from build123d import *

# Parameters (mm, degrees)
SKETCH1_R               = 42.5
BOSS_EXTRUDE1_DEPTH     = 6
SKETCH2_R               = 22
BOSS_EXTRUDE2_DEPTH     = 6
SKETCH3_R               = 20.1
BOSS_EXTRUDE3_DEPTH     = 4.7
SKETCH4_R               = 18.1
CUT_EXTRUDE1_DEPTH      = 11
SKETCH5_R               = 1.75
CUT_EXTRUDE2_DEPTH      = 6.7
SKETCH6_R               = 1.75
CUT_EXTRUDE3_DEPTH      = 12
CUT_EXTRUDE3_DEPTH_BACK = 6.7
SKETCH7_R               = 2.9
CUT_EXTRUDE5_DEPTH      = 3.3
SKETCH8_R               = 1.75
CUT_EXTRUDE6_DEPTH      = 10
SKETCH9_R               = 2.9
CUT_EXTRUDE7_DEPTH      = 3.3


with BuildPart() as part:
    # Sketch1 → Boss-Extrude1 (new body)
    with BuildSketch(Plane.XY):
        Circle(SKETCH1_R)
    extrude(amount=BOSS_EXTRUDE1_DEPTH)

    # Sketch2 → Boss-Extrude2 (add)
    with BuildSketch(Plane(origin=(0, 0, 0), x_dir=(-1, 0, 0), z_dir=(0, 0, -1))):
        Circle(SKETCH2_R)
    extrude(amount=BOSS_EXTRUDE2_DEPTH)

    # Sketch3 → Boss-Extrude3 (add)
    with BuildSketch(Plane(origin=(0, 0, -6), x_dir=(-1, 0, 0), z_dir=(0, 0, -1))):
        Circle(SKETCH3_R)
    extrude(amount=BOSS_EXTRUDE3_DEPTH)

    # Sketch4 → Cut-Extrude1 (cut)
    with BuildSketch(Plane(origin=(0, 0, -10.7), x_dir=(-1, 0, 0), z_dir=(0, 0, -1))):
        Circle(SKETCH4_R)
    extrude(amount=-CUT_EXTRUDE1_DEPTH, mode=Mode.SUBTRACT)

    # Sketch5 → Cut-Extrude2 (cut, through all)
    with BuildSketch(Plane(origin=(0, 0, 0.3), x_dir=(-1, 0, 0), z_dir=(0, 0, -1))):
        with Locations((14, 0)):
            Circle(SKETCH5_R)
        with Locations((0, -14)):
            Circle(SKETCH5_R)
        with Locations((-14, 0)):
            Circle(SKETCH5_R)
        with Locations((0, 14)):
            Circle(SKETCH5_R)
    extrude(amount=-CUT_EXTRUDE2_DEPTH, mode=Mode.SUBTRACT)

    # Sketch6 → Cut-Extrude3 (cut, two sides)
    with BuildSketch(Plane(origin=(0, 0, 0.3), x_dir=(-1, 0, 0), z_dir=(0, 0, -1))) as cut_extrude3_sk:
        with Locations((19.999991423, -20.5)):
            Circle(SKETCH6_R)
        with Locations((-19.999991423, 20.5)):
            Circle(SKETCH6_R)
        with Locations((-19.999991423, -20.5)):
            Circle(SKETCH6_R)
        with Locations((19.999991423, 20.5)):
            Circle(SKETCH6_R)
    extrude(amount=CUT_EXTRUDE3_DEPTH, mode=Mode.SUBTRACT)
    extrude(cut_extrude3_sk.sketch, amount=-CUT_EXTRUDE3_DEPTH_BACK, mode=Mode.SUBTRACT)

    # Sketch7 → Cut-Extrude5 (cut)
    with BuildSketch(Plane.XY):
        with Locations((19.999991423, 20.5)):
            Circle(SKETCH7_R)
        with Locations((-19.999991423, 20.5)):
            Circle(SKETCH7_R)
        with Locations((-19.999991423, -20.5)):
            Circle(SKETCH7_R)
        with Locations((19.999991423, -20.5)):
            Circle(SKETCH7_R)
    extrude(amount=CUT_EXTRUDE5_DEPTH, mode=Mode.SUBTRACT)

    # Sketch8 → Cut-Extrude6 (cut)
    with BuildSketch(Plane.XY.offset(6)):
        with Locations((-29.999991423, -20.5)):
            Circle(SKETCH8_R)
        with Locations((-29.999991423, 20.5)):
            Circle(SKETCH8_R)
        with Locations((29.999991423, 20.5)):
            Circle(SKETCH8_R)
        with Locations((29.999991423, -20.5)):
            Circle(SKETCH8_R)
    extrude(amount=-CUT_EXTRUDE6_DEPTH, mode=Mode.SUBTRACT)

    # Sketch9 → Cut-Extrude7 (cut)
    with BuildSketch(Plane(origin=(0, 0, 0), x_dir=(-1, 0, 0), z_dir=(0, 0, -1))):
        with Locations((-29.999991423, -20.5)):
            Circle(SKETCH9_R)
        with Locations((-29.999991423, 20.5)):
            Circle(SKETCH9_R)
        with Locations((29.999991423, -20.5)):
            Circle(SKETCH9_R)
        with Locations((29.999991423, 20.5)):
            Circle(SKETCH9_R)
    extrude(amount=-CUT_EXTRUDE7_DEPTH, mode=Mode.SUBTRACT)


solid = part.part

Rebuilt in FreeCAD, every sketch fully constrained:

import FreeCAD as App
import Part
import Sketcher

V = App.Vector
Q = App.Units.Quantity

doc = App.newDocument("Part")
body = doc.addObject("PartDesign::Body", "Body")

sketch1 = body.newObject("Sketcher::SketchObject", "Sketch")
sketch1.AttachmentSupport = (doc.getObject("XY_Plane"), [""])
sketch1.MapMode = "FlatFace"
sketch1.addGeometry(Part.Circle(V(0, 0, 0), V(0, 0, 1), 42.5), False)
sketch1.addConstraint([
    Sketcher.Constraint("Coincident", 0, 3, -1, 1),
    Sketcher.Constraint("Diameter", 0, Q("85 mm")),
])
pad1 = body.newObject("PartDesign::Pad", "Pad")
pad1.Profile = sketch1
pad1.Length = 6

sketch2 = body.newObject("Sketcher::SketchObject", "Sketch001")
sketch2.AttachmentSupport = (doc.getObject("XY_Plane"), [""])
sketch2.MapMode = "FlatFace"
sketch2.addGeometry(Part.Circle(V(0, 0, 0), V(0, 0, 1), 22), False)
sketch2.addConstraint([
    Sketcher.Constraint("Coincident", 0, 3, -1, 1),
    Sketcher.Constraint("Diameter", 0, Q("44 mm")),
])
pad2 = body.newObject("PartDesign::Pad", "Pad001")
pad2.Profile = sketch2
pad2.Length = 6
pad2.Reversed = True

sketch3 = body.newObject("Sketcher::SketchObject", "Sketch002")
sketch3.AttachmentSupport = (doc.getObject("XY_Plane"), [""])
sketch3.MapMode = "FlatFace"
sketch3.AttachmentOffset = App.Placement(V(0, 0, -6), App.Rotation())
sketch3.addGeometry(Part.Circle(V(0, 0, 0), V(0, 0, 1), 20.1), False)
sketch3.addConstraint([
    Sketcher.Constraint("Coincident", 0, 3, -1, 1),
    Sketcher.Constraint("Diameter", 0, Q("40.2 mm")),
])
pad3 = body.newObject("PartDesign::Pad", "Pad002")
pad3.Profile = sketch3
pad3.Length = 4.7
pad3.Reversed = True

sketch4 = body.newObject("Sketcher::SketchObject", "Sketch003")
sketch4.AttachmentSupport = (doc.getObject("XY_Plane"), [""])
sketch4.MapMode = "FlatFace"
sketch4.AttachmentOffset = App.Placement(V(0, 0, -10.7), App.Rotation())
sketch4.addGeometry(Part.Circle(V(0, 0, 0), V(0, 0, 1), 18.1), False)
sketch4.addConstraint([
    Sketcher.Constraint("Coincident", 0, 3, -1, 1),
    Sketcher.Constraint("Diameter", 0, Q("36.2 mm")),
])
pocket1 = body.newObject("PartDesign::Pocket", "Pocket")
pocket1.Profile = sketch4
pocket1.Length = 11
pocket1.Reversed = True

sketch5 = body.newObject("Sketcher::SketchObject", "Sketch004")
sketch5.AttachmentSupport = (doc.getObject("XY_Plane"), [""])
sketch5.MapMode = "FlatFace"
sketch5.AttachmentOffset = App.Placement(V(0, 0, 0.3), App.Rotation())
sketch5.addGeometry([
    Part.Circle(V(-14, 0, 0), V(0, 0, 1), 1.75),
    Part.Circle(V(0, -14, 0), V(0, 0, 1), 1.75),
    Part.Circle(V(14, 0, 0), V(0, 0, 1), 1.75),
    Part.Circle(V(0, 14, 0), V(0, 0, 1), 1.75),
], False)
sketch5.addConstraint([
    Sketcher.Constraint("Equal", 0, 1),
    Sketcher.Constraint("Equal", 1, 2),
    Sketcher.Constraint("Equal", 2, 3),
    Sketcher.Constraint("Symmetric", 0, 3, 2, 3, -1, 1),
    Sketcher.Constraint("Symmetric", 1, 3, 3, 3, -1, 1),
    Sketcher.Constraint("PointOnObject", 0, 3, -1),
    Sketcher.Constraint("PointOnObject", 1, 3, -2),
    Sketcher.Constraint("Diameter", 0, Q("3.5 mm")),
    Sketcher.Constraint("DistanceX", 0, 3, -1, 1, Q("14 mm")),
    Sketcher.Constraint("DistanceY", 1, 3, -1, 1, Q("14 mm")),
])
pocket2 = body.newObject("PartDesign::Pocket", "Pocket001")
pocket2.Profile = sketch5
pocket2.Type = "ThroughAll"
pocket2.Reversed = True

sketch6 = body.newObject("Sketcher::SketchObject", "Sketch005")
sketch6.AttachmentSupport = (doc.getObject("XY_Plane"), [""])
sketch6.MapMode = "FlatFace"
sketch6.AttachmentOffset = App.Placement(V(0, 0, 0.3), App.Rotation())
sketch6.addGeometry([
    Part.Circle(V(-19.999991, -20.5, 0), V(0, 0, 1), 1.75),
    Part.Circle(V(19.999991, 20.5, 0), V(0, 0, 1), 1.75),
    Part.Circle(V(19.999991, -20.5, 0), V(0, 0, 1), 1.75),
    Part.Circle(V(-19.999991, 20.5, 0), V(0, 0, 1), 1.75),
], False)
sketch6.addConstraint([
    Sketcher.Constraint("Equal", 0, 1),
    Sketcher.Constraint("Equal", 1, 2),
    Sketcher.Constraint("Equal", 2, 3),
    Sketcher.Constraint("Symmetric", 0, 3, 1, 3, -1, 1),
    Sketcher.Constraint("Symmetric", 2, 3, 3, 3, -1, 1),
    Sketcher.Constraint("Symmetric", 0, 3, 2, 3, -2),
    Sketcher.Constraint("Diameter", 0, Q("3.5 mm")),
    Sketcher.Constraint("DistanceY", 0, 3, 1, 3, Q("41 mm")),
    Sketcher.Constraint("DistanceX", 0, 3, -1, 1, Q("19.999991 mm")),
])
pocket3 = body.newObject("PartDesign::Pocket", "Pocket002")
pocket3.Profile = sketch6
pocket3.Type = "ThroughAll"
pocket3.Midplane = True

sketch7 = body.newObject("Sketcher::SketchObject", "Sketch006")
sketch7.AttachmentSupport = (doc.getObject("XY_Plane"), [""])
sketch7.MapMode = "FlatFace"
sketch7.addGeometry([
    Part.Circle(V(19.999991, 20.5, 0), V(0, 0, 1), 2.9),
    Part.Circle(V(-19.999991, 20.5, 0), V(0, 0, 1), 2.9),
    Part.Circle(V(-19.999991, -20.5, 0), V(0, 0, 1), 2.9),
    Part.Circle(V(19.999991, -20.5, 0), V(0, 0, 1), 2.9),
], False)
sketch7.addConstraint([
    Sketcher.Constraint("Equal", 0, 1),
    Sketcher.Constraint("Equal", 1, 2),
    Sketcher.Constraint("Equal", 2, 3),
    Sketcher.Constraint("Symmetric", 0, 3, 2, 3, -1, 1),
    Sketcher.Constraint("Symmetric", 1, 3, 3, 3, -1, 1),
    Sketcher.Constraint("Symmetric", 0, 3, 1, 3, -2),
    Sketcher.Constraint("Diameter", 0, Q("5.8 mm")),
    Sketcher.Constraint("DistanceY", 2, 3, 1, 3, Q("41 mm")),
    Sketcher.Constraint("DistanceX", -1, 1, 0, 3, Q("19.999991 mm")),
])
pocket4 = body.newObject("PartDesign::Pocket", "Pocket003")
pocket4.Profile = sketch7
pocket4.Length = 3.3
pocket4.Reversed = True

sketch8 = body.newObject("Sketcher::SketchObject", "Sketch007")
sketch8.AttachmentSupport = (doc.getObject("XY_Plane"), [""])
sketch8.MapMode = "FlatFace"
sketch8.AttachmentOffset = App.Placement(V(0, 0, 6), App.Rotation())
sketch8.addGeometry([
    Part.Circle(V(-29.999991, -20.5, 0), V(0, 0, 1), 1.75),
    Part.Circle(V(-29.999991, 20.5, 0), V(0, 0, 1), 1.75),
    Part.Circle(V(29.999991, 20.5, 0), V(0, 0, 1), 1.75),
    Part.Circle(V(29.999991, -20.5, 0), V(0, 0, 1), 1.75),
], False)
sketch8.addConstraint([
    Sketcher.Constraint("Equal", 0, 1),
    Sketcher.Constraint("Equal", 1, 2),
    Sketcher.Constraint("Equal", 2, 3),
    Sketcher.Constraint("Symmetric", 0, 3, 2, 3, -1, 1),
    Sketcher.Constraint("Symmetric", 1, 3, 3, 3, -1, 1),
    Sketcher.Constraint("Symmetric", 1, 3, 2, 3, -2),
    Sketcher.Constraint("Diameter", 0, Q("3.5 mm")),
    Sketcher.Constraint("DistanceY", 0, 3, 1, 3, Q("41 mm")),
    Sketcher.Constraint("DistanceX", 0, 3, -1, 1, Q("29.999991 mm")),
])
pocket5 = body.newObject("PartDesign::Pocket", "Pocket004")
pocket5.Profile = sketch8
pocket5.Length = 10

sketch9 = body.newObject("Sketcher::SketchObject", "Sketch008")
sketch9.AttachmentSupport = (doc.getObject("XY_Plane"), [""])
sketch9.MapMode = "FlatFace"
sketch9.addGeometry([
    Part.Circle(V(29.999991, -20.5, 0), V(0, 0, 1), 2.9),
    Part.Circle(V(29.999991, 20.5, 0), V(0, 0, 1), 2.9),
    Part.Circle(V(-29.999991, -20.5, 0), V(0, 0, 1), 2.9),
    Part.Circle(V(-29.999991, 20.5, 0), V(0, 0, 1), 2.9),
], False)
sketch9.addConstraint([
    Sketcher.Constraint("Equal", 0, 1),
    Sketcher.Constraint("Equal", 1, 2),
    Sketcher.Constraint("Equal", 2, 3),
    Sketcher.Constraint("Symmetric", 1, 3, 2, 3, -1, 1),
    Sketcher.Constraint("Symmetric", 0, 3, 3, 3, -1, 1),
    Sketcher.Constraint("Symmetric", 0, 3, 2, 3, -2),
    Sketcher.Constraint("Diameter", 0, Q("5.8 mm")),
    Sketcher.Constraint("DistanceY", 0, 3, 1, 3, Q("41 mm")),
    Sketcher.Constraint("DistanceX", -1, 1, 0, 3, Q("29.999991 mm")),
])
pocket6 = body.newObject("PartDesign::Pocket", "Pocket005")
pocket6.Profile = sketch9
pocket6.Length = 3.3
pocket6.Reversed = True

doc.recompute()
